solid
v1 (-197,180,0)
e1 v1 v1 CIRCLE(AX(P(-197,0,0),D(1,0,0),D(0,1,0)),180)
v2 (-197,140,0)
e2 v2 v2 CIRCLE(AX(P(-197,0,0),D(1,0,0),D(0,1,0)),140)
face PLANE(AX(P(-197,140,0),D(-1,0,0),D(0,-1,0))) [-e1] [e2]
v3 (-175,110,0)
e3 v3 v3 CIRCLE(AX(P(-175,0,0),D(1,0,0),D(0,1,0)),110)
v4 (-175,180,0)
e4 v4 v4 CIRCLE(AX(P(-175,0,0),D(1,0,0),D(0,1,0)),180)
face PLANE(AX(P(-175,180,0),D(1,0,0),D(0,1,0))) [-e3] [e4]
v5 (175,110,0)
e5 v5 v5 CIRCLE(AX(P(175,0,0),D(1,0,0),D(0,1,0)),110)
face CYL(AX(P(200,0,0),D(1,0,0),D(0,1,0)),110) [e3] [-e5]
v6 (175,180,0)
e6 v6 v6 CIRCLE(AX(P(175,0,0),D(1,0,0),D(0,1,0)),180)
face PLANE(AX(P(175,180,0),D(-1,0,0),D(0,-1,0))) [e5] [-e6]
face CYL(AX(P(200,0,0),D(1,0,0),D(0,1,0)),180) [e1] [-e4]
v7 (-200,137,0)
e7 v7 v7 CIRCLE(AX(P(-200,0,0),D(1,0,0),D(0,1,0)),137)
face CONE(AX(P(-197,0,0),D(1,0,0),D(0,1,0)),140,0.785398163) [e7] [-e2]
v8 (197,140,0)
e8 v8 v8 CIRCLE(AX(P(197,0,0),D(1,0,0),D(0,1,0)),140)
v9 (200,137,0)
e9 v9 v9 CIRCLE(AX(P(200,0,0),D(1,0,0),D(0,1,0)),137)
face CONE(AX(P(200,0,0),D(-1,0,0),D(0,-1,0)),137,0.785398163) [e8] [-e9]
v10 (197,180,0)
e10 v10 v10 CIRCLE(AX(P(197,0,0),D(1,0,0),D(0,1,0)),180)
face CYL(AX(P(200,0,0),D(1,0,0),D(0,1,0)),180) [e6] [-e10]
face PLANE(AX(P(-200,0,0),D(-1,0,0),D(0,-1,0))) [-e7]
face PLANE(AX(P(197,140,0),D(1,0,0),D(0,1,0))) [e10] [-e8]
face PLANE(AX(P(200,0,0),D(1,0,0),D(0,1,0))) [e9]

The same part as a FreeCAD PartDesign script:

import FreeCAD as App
import Part
import Sketcher
Q = App.Units.Quantity


def add_polygon(sketch, points):
    """Adds a closed chain of lines whose ends are joined by coincident constraints."""
    first, n = sketch.GeometryCount, len(points)
    for a, b in zip(points, points[1:] + points[:1]):
        sketch.addGeometry(Part.LineSegment(App.Vector(*a, 0), App.Vector(*b, 0)), False)
    for i in range(n):
        sketch.addConstraint(Sketcher.Constraint("Coincident", first + i, 2, first + (i + 1) % n, 1))

doc = App.newDocument("Part")
params = doc.addObject("Spreadsheet::Sheet", "Params")
for row, (alias, value) in enumerate([
    ("sketch1_width", "400 mm"),
    ("sketch1_width2", "22 mm"),
    ("sketch1_width3", "350 mm"),
    ("sketch1_height", "137 mm"),
    ("sketch1_height2", "40 mm"),
    ("revolution_angle", "360 deg"),
], start=1):
    params.set(f"A{row}", alias)
    params.set(f"B{row}", "=" + value)
    params.setAlias(f"B{row}", alias)

body = doc.addObject("PartDesign::Body", "Body")

# Sketch on XY plane
sketch1 = body.newObject("Sketcher::SketchObject", "Sketch")
sketch1.AttachmentSupport = (doc.getObject("XY_Plane"), [""])
sketch1.MapMode = "FlatFace"
add_polygon(sketch1, [(-200, 0), (200, 0), (200, 137), (197, 140), (197, 180), (175, 180), (175, 110), (-175, 110), (-175, 180), (-197, 180), (-197, 140), (-200, 137)])  # lines 0-11
sketch1.addConstraint([
    Sketcher.Constraint("Horizontal", 0),
    Sketcher.Constraint("Vertical", 1),
    Sketcher.Constraint("Vertical", 3),
    Sketcher.Constraint("Horizontal", 4),
    Sketcher.Constraint("Vertical", 5),
    Sketcher.Constraint("Horizontal", 6),
    Sketcher.Constraint("Vertical", 7),
    Sketcher.Constraint("Horizontal", 8),
    Sketcher.Constraint("Vertical", 9),
    Sketcher.Constraint("Vertical", 11),
    Sketcher.Constraint("Symmetric", 0, 2, 11, 2, -1, 1),
    Sketcher.Constraint("Symmetric", 4, 2, 7, 2, -2),
    Sketcher.Constraint("Symmetric", 2, 2, 9, 2, -2),
    Sketcher.Constraint("Perpendicular", 2, 10),
    Sketcher.Constraint("Horizontal", 1, 2, 10, 2),
    Sketcher.Constraint("DistanceX", 0, 1, 0, 2, Q("400 mm")),
    Sketcher.Constraint("DistanceX", 4, 2, 4, 1, Q("22 mm")),
    Sketcher.Constraint("DistanceX", 6, 2, 6, 1, Q("350 mm")),
    Sketcher.Constraint("DistanceY", 1, 1, 1, 2, Q("137 mm")),
    Sketcher.Constraint("DistanceY", 3, 1, 3, 2, Q("40 mm")),
    Sketcher.Constraint("DistanceY", 5, 2, 5, 1, Q("70 mm")),
])
sketch1.setExpression("Constraints[27]", "Params.sketch1_width")
sketch1.setExpression("Constraints[28]", "Params.sketch1_width2")
sketch1.setExpression("Constraints[29]", "Params.sketch1_width3")
sketch1.setExpression("Constraints[30]", "Params.sketch1_height")
sketch1.setExpression("Constraints[31]", "Params.sketch1_height2")
revolution = body.newObject("PartDesign::Revolution", "Revolution")
revolution.Profile = sketch1
revolution.ReferenceAxis = (sketch1, ["H_Axis"])
revolution.setExpression("Angle", "Params.revolution_angle")

doc.recompute()
